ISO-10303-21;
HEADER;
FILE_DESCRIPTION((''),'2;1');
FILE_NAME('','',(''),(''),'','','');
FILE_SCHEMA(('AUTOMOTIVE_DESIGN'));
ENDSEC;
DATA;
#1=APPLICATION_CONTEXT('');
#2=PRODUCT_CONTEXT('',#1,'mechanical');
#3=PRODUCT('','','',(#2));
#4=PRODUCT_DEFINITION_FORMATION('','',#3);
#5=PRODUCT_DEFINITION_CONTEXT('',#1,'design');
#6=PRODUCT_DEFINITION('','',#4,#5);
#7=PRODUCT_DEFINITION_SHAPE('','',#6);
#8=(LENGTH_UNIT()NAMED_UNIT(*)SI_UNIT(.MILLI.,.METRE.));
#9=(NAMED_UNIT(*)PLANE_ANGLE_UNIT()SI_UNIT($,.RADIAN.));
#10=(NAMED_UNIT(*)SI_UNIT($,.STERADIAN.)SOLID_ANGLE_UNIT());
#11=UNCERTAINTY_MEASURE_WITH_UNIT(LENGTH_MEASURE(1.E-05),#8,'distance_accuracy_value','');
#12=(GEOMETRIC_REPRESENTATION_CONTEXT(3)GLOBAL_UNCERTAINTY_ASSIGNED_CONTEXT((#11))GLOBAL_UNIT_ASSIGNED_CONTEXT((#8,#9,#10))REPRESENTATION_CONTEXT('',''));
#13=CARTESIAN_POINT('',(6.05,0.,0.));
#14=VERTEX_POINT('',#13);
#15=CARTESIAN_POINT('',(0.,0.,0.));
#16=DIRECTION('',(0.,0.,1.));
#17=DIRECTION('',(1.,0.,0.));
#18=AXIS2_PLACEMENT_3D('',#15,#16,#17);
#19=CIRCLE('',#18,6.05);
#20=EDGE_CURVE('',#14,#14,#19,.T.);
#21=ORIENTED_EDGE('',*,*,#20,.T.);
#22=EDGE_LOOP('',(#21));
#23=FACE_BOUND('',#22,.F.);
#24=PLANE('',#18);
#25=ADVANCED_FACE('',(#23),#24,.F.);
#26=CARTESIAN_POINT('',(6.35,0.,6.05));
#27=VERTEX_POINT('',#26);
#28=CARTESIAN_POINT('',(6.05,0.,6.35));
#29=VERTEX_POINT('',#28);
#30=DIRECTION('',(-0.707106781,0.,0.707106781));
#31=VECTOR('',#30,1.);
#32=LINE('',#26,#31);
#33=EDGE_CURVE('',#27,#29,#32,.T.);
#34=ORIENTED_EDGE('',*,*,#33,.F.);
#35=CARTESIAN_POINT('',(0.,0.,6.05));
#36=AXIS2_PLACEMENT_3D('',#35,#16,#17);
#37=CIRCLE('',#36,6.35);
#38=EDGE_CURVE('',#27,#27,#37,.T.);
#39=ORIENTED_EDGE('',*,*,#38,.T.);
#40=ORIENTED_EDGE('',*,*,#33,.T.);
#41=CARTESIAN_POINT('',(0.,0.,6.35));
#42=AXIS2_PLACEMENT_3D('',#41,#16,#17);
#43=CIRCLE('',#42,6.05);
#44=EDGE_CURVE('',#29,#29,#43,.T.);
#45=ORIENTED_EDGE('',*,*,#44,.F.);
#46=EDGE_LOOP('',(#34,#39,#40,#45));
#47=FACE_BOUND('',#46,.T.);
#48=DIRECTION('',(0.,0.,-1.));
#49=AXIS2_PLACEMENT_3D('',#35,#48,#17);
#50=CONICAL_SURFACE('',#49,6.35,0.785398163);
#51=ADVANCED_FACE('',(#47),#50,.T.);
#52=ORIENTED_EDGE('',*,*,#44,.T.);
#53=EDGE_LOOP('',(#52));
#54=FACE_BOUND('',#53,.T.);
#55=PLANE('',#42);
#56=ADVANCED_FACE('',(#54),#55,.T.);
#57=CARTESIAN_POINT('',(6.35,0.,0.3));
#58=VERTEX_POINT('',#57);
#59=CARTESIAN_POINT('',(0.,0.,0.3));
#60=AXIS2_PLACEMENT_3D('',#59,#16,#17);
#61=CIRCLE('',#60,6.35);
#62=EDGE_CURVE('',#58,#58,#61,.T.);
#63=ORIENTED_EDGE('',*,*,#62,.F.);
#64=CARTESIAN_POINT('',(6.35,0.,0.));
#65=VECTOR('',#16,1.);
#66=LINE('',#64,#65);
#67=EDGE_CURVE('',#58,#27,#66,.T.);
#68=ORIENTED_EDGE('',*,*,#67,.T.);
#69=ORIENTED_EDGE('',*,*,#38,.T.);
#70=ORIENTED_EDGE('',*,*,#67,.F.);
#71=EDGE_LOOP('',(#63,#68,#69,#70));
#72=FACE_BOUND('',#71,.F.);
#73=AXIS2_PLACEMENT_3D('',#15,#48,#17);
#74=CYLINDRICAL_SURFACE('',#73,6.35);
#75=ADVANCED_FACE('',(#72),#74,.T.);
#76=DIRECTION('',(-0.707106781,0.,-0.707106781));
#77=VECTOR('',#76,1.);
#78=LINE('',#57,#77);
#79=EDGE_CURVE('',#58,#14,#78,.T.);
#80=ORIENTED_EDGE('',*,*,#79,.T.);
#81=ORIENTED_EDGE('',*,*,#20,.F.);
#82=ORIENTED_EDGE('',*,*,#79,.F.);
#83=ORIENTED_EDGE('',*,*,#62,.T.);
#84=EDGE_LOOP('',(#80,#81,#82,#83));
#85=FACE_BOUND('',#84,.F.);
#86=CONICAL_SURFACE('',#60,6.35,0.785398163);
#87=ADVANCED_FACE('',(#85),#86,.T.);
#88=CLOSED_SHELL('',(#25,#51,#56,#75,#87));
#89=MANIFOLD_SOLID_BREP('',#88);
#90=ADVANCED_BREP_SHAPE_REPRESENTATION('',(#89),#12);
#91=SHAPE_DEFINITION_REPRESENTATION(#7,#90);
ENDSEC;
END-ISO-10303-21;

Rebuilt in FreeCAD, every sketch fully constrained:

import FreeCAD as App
import Part
import Sketcher

V = App.Vector
Q = App.Units.Quantity


def edges_at(feature, points):
    """Names of the edges that pass closest to the given points."""
    edges = feature.Shape.Edges
    near = lambda p: min(range(len(edges)), key=lambda i: edges[i].distToShape(Part.Vertex(*p))[0])
    return sorted({f"Edge{near(p) + 1}" for p in points})

doc = App.newDocument("Part")
body = doc.addObject("PartDesign::Body", "Body")

# Sketch on XY plane
sketch1 = doc.addObject("Sketcher::SketchObject", "Sketch")
body.addObject(sketch1)
sketch1.AttachmentSupport = (doc.XY_Plane, [""])
sketch1.MapMode = "FlatFace"
sketch1.addGeometry(Part.Circle(V(0, 0, 0), V(0, 0, 1), 6.35), False)
sketch1.addConstraint([
    Sketcher.Constraint("Coincident", 0, 3, -1, 1),
    Sketcher.Constraint("Diameter", 0, Q("0.5 in")),
])
pad1 = doc.addObject("PartDesign::Pad", "Pad")
body.addObject(pad1)
pad1.Profile = sketch1
pad1.Length = Q("0.25 in")
doc.recompute()

chamfer = doc.addObject("PartDesign::Chamfer", "Chamfer")
body.addObject(chamfer)
chamfer.Base = (pad1, edges_at(pad1, [(-6.35, 0, 6.35), (-6.35, 0, 0)]))
chamfer.Size = Q("0.011811 in")

doc.recompute()
